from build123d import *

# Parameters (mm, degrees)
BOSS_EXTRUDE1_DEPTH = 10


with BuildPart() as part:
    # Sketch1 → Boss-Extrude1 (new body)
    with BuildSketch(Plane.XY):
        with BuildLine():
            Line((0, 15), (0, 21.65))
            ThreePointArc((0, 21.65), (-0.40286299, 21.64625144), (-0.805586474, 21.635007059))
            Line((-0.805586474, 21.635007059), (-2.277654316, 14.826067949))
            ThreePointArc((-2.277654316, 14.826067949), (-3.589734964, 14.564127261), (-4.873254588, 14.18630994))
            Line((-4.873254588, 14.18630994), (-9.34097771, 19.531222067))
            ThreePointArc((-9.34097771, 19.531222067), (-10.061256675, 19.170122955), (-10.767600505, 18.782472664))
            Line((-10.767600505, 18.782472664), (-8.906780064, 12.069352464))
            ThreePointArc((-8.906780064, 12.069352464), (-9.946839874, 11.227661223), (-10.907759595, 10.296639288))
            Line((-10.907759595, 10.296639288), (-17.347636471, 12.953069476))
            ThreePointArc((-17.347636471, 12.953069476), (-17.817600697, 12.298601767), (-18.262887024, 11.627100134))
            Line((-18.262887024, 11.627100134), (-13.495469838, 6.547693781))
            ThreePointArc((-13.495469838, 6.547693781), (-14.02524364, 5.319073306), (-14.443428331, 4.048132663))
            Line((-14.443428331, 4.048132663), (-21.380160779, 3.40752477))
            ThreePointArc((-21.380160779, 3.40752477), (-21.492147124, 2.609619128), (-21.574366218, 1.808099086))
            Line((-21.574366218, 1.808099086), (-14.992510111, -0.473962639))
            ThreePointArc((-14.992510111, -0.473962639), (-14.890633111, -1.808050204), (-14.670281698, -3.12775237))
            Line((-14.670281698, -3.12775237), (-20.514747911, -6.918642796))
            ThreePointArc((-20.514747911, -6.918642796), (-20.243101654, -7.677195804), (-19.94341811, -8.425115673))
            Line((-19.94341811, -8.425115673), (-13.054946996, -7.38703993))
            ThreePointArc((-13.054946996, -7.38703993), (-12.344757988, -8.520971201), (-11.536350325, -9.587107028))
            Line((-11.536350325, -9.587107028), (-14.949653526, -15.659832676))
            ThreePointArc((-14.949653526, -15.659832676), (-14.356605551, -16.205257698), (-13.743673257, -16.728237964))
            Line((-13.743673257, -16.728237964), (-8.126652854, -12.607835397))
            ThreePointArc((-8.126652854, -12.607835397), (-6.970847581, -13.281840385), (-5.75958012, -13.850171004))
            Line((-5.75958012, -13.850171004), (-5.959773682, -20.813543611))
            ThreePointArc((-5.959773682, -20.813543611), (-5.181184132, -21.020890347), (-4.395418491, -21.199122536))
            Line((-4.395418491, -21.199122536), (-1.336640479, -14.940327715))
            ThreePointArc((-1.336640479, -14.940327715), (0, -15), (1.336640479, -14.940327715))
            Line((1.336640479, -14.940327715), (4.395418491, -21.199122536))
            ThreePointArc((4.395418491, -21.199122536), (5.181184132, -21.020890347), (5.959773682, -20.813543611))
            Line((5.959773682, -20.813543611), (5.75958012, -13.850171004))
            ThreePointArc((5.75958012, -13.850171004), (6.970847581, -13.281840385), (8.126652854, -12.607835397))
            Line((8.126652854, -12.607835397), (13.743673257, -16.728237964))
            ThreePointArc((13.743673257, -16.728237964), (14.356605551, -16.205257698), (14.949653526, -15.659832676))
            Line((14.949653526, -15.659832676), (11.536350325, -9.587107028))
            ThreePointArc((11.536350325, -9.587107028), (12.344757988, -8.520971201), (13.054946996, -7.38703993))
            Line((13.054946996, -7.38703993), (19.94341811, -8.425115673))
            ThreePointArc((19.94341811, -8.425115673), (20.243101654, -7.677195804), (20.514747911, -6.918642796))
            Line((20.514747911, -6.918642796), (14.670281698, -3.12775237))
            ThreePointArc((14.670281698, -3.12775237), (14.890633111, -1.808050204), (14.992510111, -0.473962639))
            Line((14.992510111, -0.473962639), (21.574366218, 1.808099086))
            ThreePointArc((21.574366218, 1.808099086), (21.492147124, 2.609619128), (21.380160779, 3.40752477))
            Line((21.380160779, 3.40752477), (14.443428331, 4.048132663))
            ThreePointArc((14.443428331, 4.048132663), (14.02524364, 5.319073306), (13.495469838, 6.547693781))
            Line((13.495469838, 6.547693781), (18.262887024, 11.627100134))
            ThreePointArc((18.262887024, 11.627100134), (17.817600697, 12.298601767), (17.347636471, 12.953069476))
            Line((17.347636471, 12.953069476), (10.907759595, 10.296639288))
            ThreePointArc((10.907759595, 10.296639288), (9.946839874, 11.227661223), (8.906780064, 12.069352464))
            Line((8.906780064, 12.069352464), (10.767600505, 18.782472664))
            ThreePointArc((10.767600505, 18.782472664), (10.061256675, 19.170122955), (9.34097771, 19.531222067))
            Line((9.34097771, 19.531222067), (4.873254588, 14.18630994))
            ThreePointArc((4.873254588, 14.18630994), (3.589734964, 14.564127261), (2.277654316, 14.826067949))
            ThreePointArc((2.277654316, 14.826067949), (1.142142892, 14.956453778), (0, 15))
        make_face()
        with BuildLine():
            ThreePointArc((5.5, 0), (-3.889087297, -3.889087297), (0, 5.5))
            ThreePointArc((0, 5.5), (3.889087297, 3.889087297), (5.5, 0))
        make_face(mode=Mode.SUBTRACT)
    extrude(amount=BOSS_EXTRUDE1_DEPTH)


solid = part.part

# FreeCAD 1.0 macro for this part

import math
import FreeCAD as App
import Part
import Sketcher

doc = App.newDocument("Part")
body = doc.addObject("PartDesign::Body", "Body")

# Sketch on XY plane
sketch1 = doc.addObject("Sketcher::SketchObject", "Sketch")
body.addObject(sketch1)
sketch1.AttachmentSupport = (doc.XY_Plane, [""])
sketch1.MapMode = "FlatFace"
sketch1.addGeometry(Part.LineSegment(App.Vector(0, 15, 0), App.Vector(0, 21.6, 0)), False)
sketch1.addGeometry(Part.ArcOfCircle(Part.Circle(App.Vector(0, 0, 0), App.Vector(0, 0, 1), 21.7), math.radians(90), math.radians(92.13)), False)
sketch1.addGeometry(Part.LineSegment(App.Vector(-0.8, 21.6, 0), App.Vector(-2.3, 14.8, 0)), False)
sketch1.addGeometry(Part.ArcOfCircle(Part.Circle(App.Vector(0, 0, 0), App.Vector(0, 0, 1), 15), math.radians(98.73), math.radians(108.96)), False)
sketch1.addGeometry(Part.LineSegment(App.Vector(-4.9, 14.2, 0), App.Vector(-9.3, 19.5, 0)), False)
sketch1.addGeometry(Part.ArcOfCircle(Part.Circle(App.Vector(0, 0, 0), App.Vector(0, 0, 1), 21.7), math.radians(115.56), math.radians(119.82)), False)
sketch1.addGeometry(Part.LineSegment(App.Vector(-10.8, 18.8, 0), App.Vector(-8.9, 12.1, 0)), False)
sketch1.addGeometry(Part.ArcOfCircle(Part.Circle(App.Vector(0, 0, 0), App.Vector(0, 0, 1), 15), math.radians(126.43), math.radians(136.65)), False)
sketch1.addGeometry(Part.LineSegment(App.Vector(-10.9, 10.3, 0), App.Vector(-17.3, 13, 0)), False)
sketch1.addGeometry(Part.ArcOfCircle(Part.Circle(App.Vector(0, 0, 0), App.Vector(0, 0, 1), 21.6), math.radians(143.25), math.radians(147.52)), False)
sketch1.addGeometry(Part.LineSegment(App.Vector(-18.3, 11.6, 0), App.Vector(-13.5, 6.5, 0)), False)
sketch1.addGeometry(Part.ArcOfCircle(Part.Circle(App.Vector(0, 0, 0), App.Vector(0, 0, 1), 15), math.radians(154.12), math.radians(164.34)), False)
sketch1.addGeometry(Part.LineSegment(App.Vector(-14.4, 4, 0), App.Vector(-21.4, 3.4, 0)), False)
sketch1.addGeometry(Part.ArcOfCircle(Part.Circle(App.Vector(0, 0, 0), App.Vector(0, 0, 1), 21.7), math.radians(170.94), math.radians(175.21)), False)
sketch1.addGeometry(Part.LineSegment(App.Vector(-21.6, 1.8, 0), App.Vector(-15, -0.5, 0)), False)
sketch1.addGeometry(Part.ArcOfCircle(Part.Circle(App.Vector(0, 0, 0), App.Vector(0, 0, 1), 15), math.radians(-178.19), math.radians(-167.96)), False)
sketch1.addGeometry(Part.LineSegment(App.Vector(-14.7, -3.1, 0), App.Vector(-20.5, -6.9, 0)), False)
sketch1.addGeometry(Part.ArcOfCircle(Part.Circle(App.Vector(0, 0, 0), App.Vector(0, 0, 1), 21.7), math.radians(-161.36), math.radians(-157.1)), False)
sketch1.addGeometry(Part.LineSegment(App.Vector(-19.9, -8.4, 0), App.Vector(-13.1, -7.4, 0)), False)
sketch1.addGeometry(Part.ArcOfCircle(Part.Circle(App.Vector(0, 0, 0), App.Vector(0, 0, 1), 15), math.radians(-150.5), math.radians(-140.27)), False)
sketch1.addGeometry(Part.LineSegment(App.Vector(-11.5, -9.6, 0), App.Vector(-14.9, -15.7, 0)), False)
sketch1.addGeometry(Part.ArcOfCircle(Part.Circle(App.Vector(0, 0, 0), App.Vector(0, 0, 1), 21.6), math.radians(-133.67), math.radians(-129.41)), False)
sketch1.addGeometry(Part.LineSegment(App.Vector(-13.7, -16.7, 0), App.Vector(-8.1, -12.6, 0)), False)
sketch1.addGeometry(Part.ArcOfCircle(Part.Circle(App.Vector(0, 0, 0), App.Vector(0, 0, 1), 15), math.radians(-122.8), math.radians(-112.58)), False)
sketch1.addGeometry(Part.LineSegment(App.Vector(-5.8, -13.9, 0), App.Vector(-6, -20.8, 0)), False)
sketch1.addGeometry(Part.ArcOfCircle(Part.Circle(App.Vector(0, 0, 0), App.Vector(0, 0, 1), 21.7), math.radians(-105.98), math.radians(-101.71)), False)
sketch1.addGeometry(Part.LineSegment(App.Vector(-4.4, -21.2, 0), App.Vector(-1.3, -14.9, 0)), False)
sketch1.addGeometry(Part.ArcOfCircle(Part.Circle(App.Vector(0, 0, 0), App.Vector(0, 0, 1), 15), math.radians(-95.11), math.radians(-84.89)), False)
sketch1.addGeometry(Part.LineSegment(App.Vector(1.3, -14.9, 0), App.Vector(4.4, -21.2, 0)), False)
sketch1.addGeometry(Part.ArcOfCircle(Part.Circle(App.Vector(0, 0, 0), App.Vector(0, 0, 1), 21.7), math.radians(-78.29), math.radians(-74.02)), False)
sketch1.addGeometry(Part.LineSegment(App.Vector(6, -20.8, 0), App.Vector(5.8, -13.9, 0)), False)
sketch1.addGeometry(Part.ArcOfCircle(Part.Circle(App.Vector(0, 0, 0), App.Vector(0, 0, 1), 15), math.radians(-67.42), math.radians(-57.2)), False)
sketch1.addGeometry(Part.LineSegment(App.Vector(8.1, -12.6, 0), App.Vector(13.7, -16.7, 0)), False)
sketch1.addGeometry(Part.ArcOfCircle(Part.Circle(App.Vector(0, 0, 0), App.Vector(0, 0, 1), 21.6), math.radians(-50.59), math.radians(-46.33)), False)
sketch1.addGeometry(Part.LineSegment(App.Vector(14.9, -15.7, 0), App.Vector(11.5, -9.6, 0)), False)
sketch1.addGeometry(Part.ArcOfCircle(Part.Circle(App.Vector(0, 0, 0), App.Vector(0, 0, 1), 15), math.radians(-39.73), math.radians(-29.5)), False)
sketch1.addGeometry(Part.LineSegment(App.Vector(13.1, -7.4, 0), App.Vector(19.9, -8.4, 0)), False)
sketch1.addGeometry(Part.ArcOfCircle(Part.Circle(App.Vector(0, 0, 0), App.Vector(0, 0, 1), 21.7), math.radians(-22.9), math.radians(-18.64)), False)
sketch1.addGeometry(Part.LineSegment(App.Vector(20.5, -6.9, 0), App.Vector(14.7, -3.1, 0)), False)
sketch1.addGeometry(Part.ArcOfCircle(Part.Circle(App.Vector(0, 0, 0), App.Vector(0, 0, 1), 15), math.radians(-12.04), math.radians(-1.81)), False)
sketch1.addGeometry(Part.LineSegment(App.Vector(15, -0.5, 0), App.Vector(21.6, 1.8, 0)), False)
sketch1.addGeometry(Part.ArcOfCircle(Part.Circle(App.Vector(0, 0, 0), App.Vector(0, 0, 1), 21.7), math.radians(4.79), math.radians(9.06)), False)
sketch1.addGeometry(Part.LineSegment(App.Vector(21.4, 3.4, 0), App.Vector(14.4, 4, 0)), False)
sketch1.addGeometry(Part.ArcOfCircle(Part.Circle(App.Vector(0, 0, 0), App.Vector(0, 0, 1), 15), math.radians(15.66), math.radians(25.88)), False)
sketch1.addGeometry(Part.LineSegment(App.Vector(13.5, 6.5, 0), App.Vector(18.3, 11.6, 0)), False)
sketch1.addGeometry(Part.ArcOfCircle(Part.Circle(App.Vector(0, 0, 0), App.Vector(0, 0, 1), 21.6), math.radians(32.48), math.radians(36.75)), False)
sketch1.addGeometry(Part.LineSegment(App.Vector(17.3, 13, 0), App.Vector(10.9, 10.3, 0)), False)
sketch1.addGeometry(Part.ArcOfCircle(Part.Circle(App.Vector(0, 0, 0), App.Vector(0, 0, 1), 15), math.radians(43.35), math.radians(53.57)), False)
sketch1.addGeometry(Part.LineSegment(App.Vector(8.9, 12.1, 0), App.Vector(10.8, 18.8, 0)), False)
sketch1.addGeometry(Part.ArcOfCircle(Part.Circle(App.Vector(0, 0, 0), App.Vector(0, 0, 1), 21.7), math.radians(60.18), math.radians(64.44)), False)
sketch1.addGeometry(Part.LineSegment(App.Vector(9.3, 19.5, 0), App.Vector(4.9, 14.2, 0)), False)
sketch1.addGeometry(Part.ArcOfCircle(Part.Circle(App.Vector(0, 0, 0), App.Vector(0, 0, 1), 15), math.radians(71.04), math.radians(81.27)), False)
sketch1.addGeometry(Part.ArcOfCircle(Part.Circle(App.Vector(0, 0, 0), App.Vector(0, 0, 1), 15), math.radians(81.27), math.radians(90)), False)
sketch1.addGeometry(Part.ArcOfCircle(Part.Circle(App.Vector(0, 0, 0), App.Vector(0, 0, 1), 5.5), math.radians(0), math.radians(90)), False)
sketch1.addGeometry(Part.ArcOfCircle(Part.Circle(App.Vector(0, 0, 0), App.Vector(0, 0, 1), 5.5), math.radians(90), math.radians(360)), False)
sketch1.addConstraint(Sketcher.Constraint("Coincident", 0, 2, 1, 1))
sketch1.addConstraint(Sketcher.Constraint("Coincident", 1, 2, 2, 1))
sketch1.addConstraint(Sketcher.Constraint("Coincident", 2, 2, 3, 1))
sketch1.addConstraint(Sketcher.Constraint("Coincident", 3, 2, 4, 1))
sketch1.addConstraint(Sketcher.Constraint("Coincident", 4, 2, 5, 1))
sketch1.addConstraint(Sketcher.Constraint("Coincident", 5, 2, 6, 1))
sketch1.addConstraint(Sketcher.Constraint("Coincident", 6, 2, 7, 1))
sketch1.addConstraint(Sketcher.Constraint("Coincident", 7, 2, 8, 1))
sketch1.addConstraint(Sketcher.Constraint("Coincident", 8, 2, 9, 1))
sketch1.addConstraint(Sketcher.Constraint("Coincident", 9, 2, 10, 1))
sketch1.addConstraint(Sketcher.Constraint("Coincident", 10, 2, 11, 1))
sketch1.addConstraint(Sketcher.Constraint("Coincident", 11, 2, 12, 1))
sketch1.addConstraint(Sketcher.Constraint("Coincident", 12, 2, 13, 1))
sketch1.addConstraint(Sketcher.Constraint("Coincident", 13, 2, 14, 1))
sketch1.addConstraint(Sketcher.Constraint("Coincident", 14, 2, 15, 1))
sketch1.addConstraint(Sketcher.Constraint("Coincident", 15, 2, 16, 1))
sketch1.addConstraint(Sketcher.Constraint("Coincident", 16, 2, 17, 1))
sketch1.addConstraint(Sketcher.Constraint("Coincident", 17, 2, 18, 1))
sketch1.addConstraint(Sketcher.Constraint("Coincident", 18, 2, 19, 1))
sketch1.addConstraint(Sketcher.Constraint("Coincident", 19, 2, 20, 1))
sketch1.addConstraint(Sketcher.Constraint("Coincident", 20, 2, 21, 1))
sketch1.addConstraint(Sketcher.Constraint("Coincident", 21, 2, 22, 1))
sketch1.addConstraint(Sketcher.Constraint("Coincident", 22, 2, 23, 1))
sketch1.addConstraint(Sketcher.Constraint("Coincident", 23, 2, 24, 1))
sketch1.addConstraint(Sketcher.Constraint("Coincident", 24, 2, 25, 1))
sketch1.addConstraint(Sketcher.Constraint("Coincident", 25, 2, 26, 1))
sketch1.addConstraint(Sketcher.Constraint("Coincident", 26, 2, 27, 1))
sketch1.addConstraint(Sketcher.Constraint("Coincident", 27, 2, 28, 1))
sketch1.addConstraint(Sketcher.Constraint("Coincident", 28, 2, 29, 1))
sketch1.addConstraint(Sketcher.Constraint("Coincident", 29, 2, 30, 1))
sketch1.addConstraint(Sketcher.Constraint("Coincident", 30, 2, 31, 1))
sketch1.addConstraint(Sketcher.Constraint("Coincident", 31, 2, 32, 1))
sketch1.addConstraint(Sketcher.Constraint("Coincident", 32, 2, 33, 1))
sketch1.addConstraint(Sketcher.Constraint("Coincident", 33, 2, 34, 1))
sketch1.addConstraint(Sketcher.Constraint("Coincident", 34, 2, 35, 1))
sketch1.addConstraint(Sketcher.Constraint("Coincident", 35, 2, 36, 1))
sketch1.addConstraint(Sketcher.Constraint("Coincident", 36, 2, 37, 1))
sketch1.addConstraint(Sketcher.Constraint("Coincident", 37, 2, 38, 1))
sketch1.addConstraint(Sketcher.Constraint("Coincident", 38, 2, 39, 1))
sketch1.addConstraint(Sketcher.Constraint("Coincident", 39, 2, 40, 1))
sketch1.addConstraint(Sketcher.Constraint("Coincident", 40, 2, 41, 1))
sketch1.addConstraint(Sketcher.Constraint("Coincident", 41, 2, 42, 1))
sketch1.addConstraint(Sketcher.Constraint("Coincident", 42, 2, 43, 1))
sketch1.addConstraint(Sketcher.Constraint("Coincident", 43, 2, 44, 1))
sketch1.addConstraint(Sketcher.Constraint("Coincident", 44, 2, 45, 1))
sketch1.addConstraint(Sketcher.Constraint("Coincident", 45, 2, 46, 1))
sketch1.addConstraint(Sketcher.Constraint("Coincident", 46, 2, 47, 1))
sketch1.addConstraint(Sketcher.Constraint("Coincident", 47, 2, 48, 1))
sketch1.addConstraint(Sketcher.Constraint("Coincident", 48, 2, 49, 1))
sketch1.addConstraint(Sketcher.Constraint("Coincident", 49, 2, 50, 1))
sketch1.addConstraint(Sketcher.Constraint("Coincident", 50, 2, 51, 1))
sketch1.addConstraint(Sketcher.Constraint("Tangent", 51, 2, 52, 1))
sketch1.addConstraint(Sketcher.Constraint("Coincident", 52, 2, 0, 1))
sketch1.addConstraint(Sketcher.Constraint("Tangent", 53, 1, 54, 2))
sketch1.addConstraint(Sketcher.Constraint("Coincident", 54, 1, 53, 2))
sketch1.addConstraint(Sketcher.Constraint("Vertical", 0))
sketch1.addConstraint(Sketcher.Constraint("Coincident", 1, 3, -1, 1))
sketch1.addConstraint(Sketcher.Constraint("Coincident", 3, 3, -1, 1))
sketch1.addConstraint(Sketcher.Constraint("Coincident", 5, 3, -1, 1))
sketch1.addConstraint(Sketcher.Constraint("Coincident", 7, 3, -1, 1))
sketch1.addConstraint(Sketcher.Constraint("Coincident", 9, 3, -1, 1))
sketch1.addConstraint(Sketcher.Constraint("Coincident", 11, 3, -1, 1))
sketch1.addConstraint(Sketcher.Constraint("Coincident", 13, 3, -1, 1))
sketch1.addConstraint(Sketcher.Constraint("Coincident", 15, 3, -1, 1))
sketch1.addConstraint(Sketcher.Constraint("Coincident", 17, 3, -1, 1))
sketch1.addConstraint(Sketcher.Constraint("Coincident", 19, 3, -1, 1))
sketch1.addConstraint(Sketcher.Constraint("Coincident", 21, 3, -1, 1))
sketch1.addConstraint(Sketcher.Constraint("Coincident", 23, 3, -1, 1))
sketch1.addConstraint(Sketcher.Constraint("Coincident", 25, 3, -1, 1))
sketch1.addConstraint(Sketcher.Constraint("Coincident", 27, 3, -1, 1))
sketch1.addConstraint(Sketcher.Constraint("Coincident", 29, 3, -1, 1))
sketch1.addConstraint(Sketcher.Constraint("Coincident", 31, 3, -1, 1))
sketch1.addConstraint(Sketcher.Constraint("Coincident", 33, 3, -1, 1))
sketch1.addConstraint(Sketcher.Constraint("Coincident", 35, 3, -1, 1))
sketch1.addConstraint(Sketcher.Constraint("Coincident", 37, 3, -1, 1))
sketch1.addConstraint(Sketcher.Constraint("Coincident", 39, 3, -1, 1))
sketch1.addConstraint(Sketcher.Constraint("Coincident", 41, 3, -1, 1))
sketch1.addConstraint(Sketcher.Constraint("Coincident", 43, 3, -1, 1))
sketch1.addConstraint(Sketcher.Constraint("Coincident", 45, 3, -1, 1))
sketch1.addConstraint(Sketcher.Constraint("Coincident", 47, 3, -1, 1))
sketch1.addConstraint(Sketcher.Constraint("Coincident", 49, 3, -1, 1))
sketch1.addConstraint(Sketcher.Constraint("Coincident", 51, 3, -1, 1))
sketch1.addConstraint(Sketcher.Constraint("Coincident", 53, 3, -1, 1))
sketch1.addConstraint(Sketcher.Constraint("Equal", 1, 5))
sketch1.addConstraint(Sketcher.Constraint("Equal", 3, 7))
sketch1.addConstraint(Sketcher.Constraint("Equal", 7, 11))
sketch1.addConstraint(Sketcher.Constraint("Equal", 9, 13))
sketch1.addConstraint(Sketcher.Constraint("Equal", 11, 15))
sketch1.addConstraint(Sketcher.Constraint("Equal", 13, 17))
sketch1.addConstraint(Sketcher.Constraint("Equal", 15, 19))
sketch1.addConstraint(Sketcher.Constraint("Equal", 17, 21))
sketch1.addConstraint(Sketcher.Constraint("Equal", 19, 23))
sketch1.addConstraint(Sketcher.Constraint("Equal", 21, 25))
sketch1.addConstraint(Sketcher.Constraint("Equal", 23, 27))
sketch1.addConstraint(Sketcher.Constraint("Equal", 25, 29))
sketch1.addConstraint(Sketcher.Constraint("Equal", 27, 31))
sketch1.addConstraint(Sketcher.Constraint("Equal", 29, 33))
sketch1.addConstraint(Sketcher.Constraint("Equal", 31, 35))
sketch1.addConstraint(Sketcher.Constraint("Equal", 33, 37))
sketch1.addConstraint(Sketcher.Constraint("Equal", 35, 39))
sketch1.addConstraint(Sketcher.Constraint("Equal", 37, 41))
sketch1.addConstraint(Sketcher.Constraint("Equal", 39, 43))
sketch1.addConstraint(Sketcher.Constraint("Equal", 41, 45))
sketch1.addConstraint(Sketcher.Constraint("Equal", 43, 47))
sketch1.addConstraint(Sketcher.Constraint("Equal", 41, 49))
sketch1.addConstraint(Sketcher.Constraint("Equal", 47, 51))
sketch1.addConstraint(Sketcher.Constraint("Equal", 51, 52))
sketch1.addConstraint(Sketcher.Constraint("Symmetric", 5, 2, 48, 2, -2))
sketch1.addConstraint(Sketcher.Constraint("PointOnObject", 0, 2, -2))
sketch1.addConstraint(Sketcher.Constraint("PointOnObject", 53, 1, -1))
sketch1.addConstraint(Sketcher.Constraint("PointOnObject", 54, 1, -2))
sketch1.addConstraint(Sketcher.Constraint("Horizontal", 26, 2, 27, 2))
sketch1.addConstraint(Sketcher.Constraint("Horizontal", 25, 2, 28, 2))
sketch1.addConstraint(Sketcher.Constraint("Horizontal", 24, 2, 29, 2))
sketch1.addConstraint(Sketcher.Constraint("Horizontal", 23, 2, 30, 2))
sketch1.addConstraint(Sketcher.Constraint("Horizontal", 22, 2, 31, 2))
sketch1.addConstraint(Sketcher.Constraint("Horizontal", 21, 2, 32, 2))
sketch1.addConstraint(Sketcher.Constraint("Horizontal", 20, 2, 33, 2))
sketch1.addConstraint(Sketcher.Constraint("Horizontal", 19, 2, 34, 2))
sketch1.addConstraint(Sketcher.Constraint("Horizontal", 18, 2, 35, 2))
sketch1.addConstraint(Sketcher.Constraint("Horizontal", 17, 2, 36, 2))
sketch1.addConstraint(Sketcher.Constraint("Horizontal", 16, 2, 37, 2))
sketch1.addConstraint(Sketcher.Constraint("Horizontal", 15, 2, 38, 2))
sketch1.addConstraint(Sketcher.Constraint("Horizontal", 14, 2, 39, 2))
sketch1.addConstraint(Sketcher.Constraint("Horizontal", 13, 2, 40, 2))
sketch1.addConstraint(Sketcher.Constraint("Horizontal", 12, 2, 41, 2))
sketch1.addConstraint(Sketcher.Constraint("Horizontal", 11, 2, 42, 2))
sketch1.addConstraint(Sketcher.Constraint("Horizontal", 10, 2, 43, 2))
sketch1.addConstraint(Sketcher.Constraint("Horizontal", 9, 2, 44, 2))
sketch1.addConstraint(Sketcher.Constraint("Horizontal", 8, 2, 45, 2))
sketch1.addConstraint(Sketcher.Constraint("Horizontal", 7, 2, 46, 2))
sketch1.addConstraint(Sketcher.Constraint("Horizontal", 6, 2, 47, 2))
sketch1.addConstraint(Sketcher.Constraint("Horizontal", 4, 2, 49, 2))
sketch1.addConstraint(Sketcher.Constraint("Horizontal", 3, 2, 50, 2))
sketch1.addConstraint(Sketcher.Constraint("Horizontal", 2, 2, 51, 2))
sketch1.addConstraint(Sketcher.Constraint("Equal", 2, 4))
sketch1.addConstraint(Sketcher.Constraint("Equal", 4, 6))
sketch1.addConstraint(Sketcher.Constraint("Equal", 6, 8))
sketch1.addConstraint(Sketcher.Constraint("Equal", 8, 10))
sketch1.addConstraint(Sketcher.Constraint("Equal", 10, 12))
sketch1.addConstraint(Sketcher.Constraint("Equal", 12, 14))
sketch1.addConstraint(Sketcher.Constraint("Equal", 14, 16))
sketch1.addConstraint(Sketcher.Constraint("Equal", 16, 18))
sketch1.addConstraint(Sketcher.Constraint("Equal", 18, 20))
sketch1.addConstraint(Sketcher.Constraint("Equal", 20, 22))
sketch1.addConstraint(Sketcher.Constraint("Equal", 22, 24))
sketch1.addConstraint(Sketcher.Constraint("Equal", 24, 26))
sketch1.addConstraint(Sketcher.Constraint("Radius", 3, 15.0))
sketch1.addConstraint(Sketcher.Constraint("Radius", 53, 5.5))
sketch1.addConstraint(Sketcher.Constraint("Radius", 1, 21.650002))
sketch1.addConstraint(Sketcher.Constraint("DistanceX", 5, 2, -1, 1, 10.767601))
sketch1.addConstraint(Sketcher.Constraint("DistanceY", -1, 1, 9, 2, 11.6271))
sketch1.addConstraint(Sketcher.Constraint("DistanceY", -1, 1, 13, 2, 1.808099))
sketch1.addConstraint(Sketcher.Constraint("Distance", 2, 6.96625))
sketch1.addConstraint(Sketcher.Constraint("DistanceY", -1, 1, 3, 2, 14.18631))
sketch1.addConstraint(Sketcher.Constraint("DistanceX", 7, 2, -1, 1, 10.90776))
sketch1.addConstraint(Sketcher.Constraint("DistanceX", 11, 2, -1, 1, 14.443428))
sketch1.addConstraint(Sketcher.Constraint("DistanceX", 15, 2, -1, 1, 14.670282))
sketch1.addConstraint(Sketcher.Constraint("DistanceX", 17, 2, -1, 1, 19.943418))
sketch1.addConstraint(Sketcher.Constraint("DistanceX", 19, 2, -1, 1, 11.53635))
sketch1.addConstraint(Sketcher.Constraint("DistanceX", 23, 2, -1, 1, 5.75958))
sketch1.addConstraint(Sketcher.Constraint("DistanceX", 25, 2, -1, 1, 4.395418))
sketch1.addConstraint(Sketcher.Constraint("DistanceX", 1, 2, -1, 1, 0.805586))
sketch1.addConstraint(Sketcher.Constraint("DistanceX", 21, 2, -1, 1, 13.743673))
pad1 = doc.addObject("PartDesign::Pad", "Pad")
body.addObject(pad1)
pad1.Profile = sketch1
pad1.Length = 10

doc.recompute()
